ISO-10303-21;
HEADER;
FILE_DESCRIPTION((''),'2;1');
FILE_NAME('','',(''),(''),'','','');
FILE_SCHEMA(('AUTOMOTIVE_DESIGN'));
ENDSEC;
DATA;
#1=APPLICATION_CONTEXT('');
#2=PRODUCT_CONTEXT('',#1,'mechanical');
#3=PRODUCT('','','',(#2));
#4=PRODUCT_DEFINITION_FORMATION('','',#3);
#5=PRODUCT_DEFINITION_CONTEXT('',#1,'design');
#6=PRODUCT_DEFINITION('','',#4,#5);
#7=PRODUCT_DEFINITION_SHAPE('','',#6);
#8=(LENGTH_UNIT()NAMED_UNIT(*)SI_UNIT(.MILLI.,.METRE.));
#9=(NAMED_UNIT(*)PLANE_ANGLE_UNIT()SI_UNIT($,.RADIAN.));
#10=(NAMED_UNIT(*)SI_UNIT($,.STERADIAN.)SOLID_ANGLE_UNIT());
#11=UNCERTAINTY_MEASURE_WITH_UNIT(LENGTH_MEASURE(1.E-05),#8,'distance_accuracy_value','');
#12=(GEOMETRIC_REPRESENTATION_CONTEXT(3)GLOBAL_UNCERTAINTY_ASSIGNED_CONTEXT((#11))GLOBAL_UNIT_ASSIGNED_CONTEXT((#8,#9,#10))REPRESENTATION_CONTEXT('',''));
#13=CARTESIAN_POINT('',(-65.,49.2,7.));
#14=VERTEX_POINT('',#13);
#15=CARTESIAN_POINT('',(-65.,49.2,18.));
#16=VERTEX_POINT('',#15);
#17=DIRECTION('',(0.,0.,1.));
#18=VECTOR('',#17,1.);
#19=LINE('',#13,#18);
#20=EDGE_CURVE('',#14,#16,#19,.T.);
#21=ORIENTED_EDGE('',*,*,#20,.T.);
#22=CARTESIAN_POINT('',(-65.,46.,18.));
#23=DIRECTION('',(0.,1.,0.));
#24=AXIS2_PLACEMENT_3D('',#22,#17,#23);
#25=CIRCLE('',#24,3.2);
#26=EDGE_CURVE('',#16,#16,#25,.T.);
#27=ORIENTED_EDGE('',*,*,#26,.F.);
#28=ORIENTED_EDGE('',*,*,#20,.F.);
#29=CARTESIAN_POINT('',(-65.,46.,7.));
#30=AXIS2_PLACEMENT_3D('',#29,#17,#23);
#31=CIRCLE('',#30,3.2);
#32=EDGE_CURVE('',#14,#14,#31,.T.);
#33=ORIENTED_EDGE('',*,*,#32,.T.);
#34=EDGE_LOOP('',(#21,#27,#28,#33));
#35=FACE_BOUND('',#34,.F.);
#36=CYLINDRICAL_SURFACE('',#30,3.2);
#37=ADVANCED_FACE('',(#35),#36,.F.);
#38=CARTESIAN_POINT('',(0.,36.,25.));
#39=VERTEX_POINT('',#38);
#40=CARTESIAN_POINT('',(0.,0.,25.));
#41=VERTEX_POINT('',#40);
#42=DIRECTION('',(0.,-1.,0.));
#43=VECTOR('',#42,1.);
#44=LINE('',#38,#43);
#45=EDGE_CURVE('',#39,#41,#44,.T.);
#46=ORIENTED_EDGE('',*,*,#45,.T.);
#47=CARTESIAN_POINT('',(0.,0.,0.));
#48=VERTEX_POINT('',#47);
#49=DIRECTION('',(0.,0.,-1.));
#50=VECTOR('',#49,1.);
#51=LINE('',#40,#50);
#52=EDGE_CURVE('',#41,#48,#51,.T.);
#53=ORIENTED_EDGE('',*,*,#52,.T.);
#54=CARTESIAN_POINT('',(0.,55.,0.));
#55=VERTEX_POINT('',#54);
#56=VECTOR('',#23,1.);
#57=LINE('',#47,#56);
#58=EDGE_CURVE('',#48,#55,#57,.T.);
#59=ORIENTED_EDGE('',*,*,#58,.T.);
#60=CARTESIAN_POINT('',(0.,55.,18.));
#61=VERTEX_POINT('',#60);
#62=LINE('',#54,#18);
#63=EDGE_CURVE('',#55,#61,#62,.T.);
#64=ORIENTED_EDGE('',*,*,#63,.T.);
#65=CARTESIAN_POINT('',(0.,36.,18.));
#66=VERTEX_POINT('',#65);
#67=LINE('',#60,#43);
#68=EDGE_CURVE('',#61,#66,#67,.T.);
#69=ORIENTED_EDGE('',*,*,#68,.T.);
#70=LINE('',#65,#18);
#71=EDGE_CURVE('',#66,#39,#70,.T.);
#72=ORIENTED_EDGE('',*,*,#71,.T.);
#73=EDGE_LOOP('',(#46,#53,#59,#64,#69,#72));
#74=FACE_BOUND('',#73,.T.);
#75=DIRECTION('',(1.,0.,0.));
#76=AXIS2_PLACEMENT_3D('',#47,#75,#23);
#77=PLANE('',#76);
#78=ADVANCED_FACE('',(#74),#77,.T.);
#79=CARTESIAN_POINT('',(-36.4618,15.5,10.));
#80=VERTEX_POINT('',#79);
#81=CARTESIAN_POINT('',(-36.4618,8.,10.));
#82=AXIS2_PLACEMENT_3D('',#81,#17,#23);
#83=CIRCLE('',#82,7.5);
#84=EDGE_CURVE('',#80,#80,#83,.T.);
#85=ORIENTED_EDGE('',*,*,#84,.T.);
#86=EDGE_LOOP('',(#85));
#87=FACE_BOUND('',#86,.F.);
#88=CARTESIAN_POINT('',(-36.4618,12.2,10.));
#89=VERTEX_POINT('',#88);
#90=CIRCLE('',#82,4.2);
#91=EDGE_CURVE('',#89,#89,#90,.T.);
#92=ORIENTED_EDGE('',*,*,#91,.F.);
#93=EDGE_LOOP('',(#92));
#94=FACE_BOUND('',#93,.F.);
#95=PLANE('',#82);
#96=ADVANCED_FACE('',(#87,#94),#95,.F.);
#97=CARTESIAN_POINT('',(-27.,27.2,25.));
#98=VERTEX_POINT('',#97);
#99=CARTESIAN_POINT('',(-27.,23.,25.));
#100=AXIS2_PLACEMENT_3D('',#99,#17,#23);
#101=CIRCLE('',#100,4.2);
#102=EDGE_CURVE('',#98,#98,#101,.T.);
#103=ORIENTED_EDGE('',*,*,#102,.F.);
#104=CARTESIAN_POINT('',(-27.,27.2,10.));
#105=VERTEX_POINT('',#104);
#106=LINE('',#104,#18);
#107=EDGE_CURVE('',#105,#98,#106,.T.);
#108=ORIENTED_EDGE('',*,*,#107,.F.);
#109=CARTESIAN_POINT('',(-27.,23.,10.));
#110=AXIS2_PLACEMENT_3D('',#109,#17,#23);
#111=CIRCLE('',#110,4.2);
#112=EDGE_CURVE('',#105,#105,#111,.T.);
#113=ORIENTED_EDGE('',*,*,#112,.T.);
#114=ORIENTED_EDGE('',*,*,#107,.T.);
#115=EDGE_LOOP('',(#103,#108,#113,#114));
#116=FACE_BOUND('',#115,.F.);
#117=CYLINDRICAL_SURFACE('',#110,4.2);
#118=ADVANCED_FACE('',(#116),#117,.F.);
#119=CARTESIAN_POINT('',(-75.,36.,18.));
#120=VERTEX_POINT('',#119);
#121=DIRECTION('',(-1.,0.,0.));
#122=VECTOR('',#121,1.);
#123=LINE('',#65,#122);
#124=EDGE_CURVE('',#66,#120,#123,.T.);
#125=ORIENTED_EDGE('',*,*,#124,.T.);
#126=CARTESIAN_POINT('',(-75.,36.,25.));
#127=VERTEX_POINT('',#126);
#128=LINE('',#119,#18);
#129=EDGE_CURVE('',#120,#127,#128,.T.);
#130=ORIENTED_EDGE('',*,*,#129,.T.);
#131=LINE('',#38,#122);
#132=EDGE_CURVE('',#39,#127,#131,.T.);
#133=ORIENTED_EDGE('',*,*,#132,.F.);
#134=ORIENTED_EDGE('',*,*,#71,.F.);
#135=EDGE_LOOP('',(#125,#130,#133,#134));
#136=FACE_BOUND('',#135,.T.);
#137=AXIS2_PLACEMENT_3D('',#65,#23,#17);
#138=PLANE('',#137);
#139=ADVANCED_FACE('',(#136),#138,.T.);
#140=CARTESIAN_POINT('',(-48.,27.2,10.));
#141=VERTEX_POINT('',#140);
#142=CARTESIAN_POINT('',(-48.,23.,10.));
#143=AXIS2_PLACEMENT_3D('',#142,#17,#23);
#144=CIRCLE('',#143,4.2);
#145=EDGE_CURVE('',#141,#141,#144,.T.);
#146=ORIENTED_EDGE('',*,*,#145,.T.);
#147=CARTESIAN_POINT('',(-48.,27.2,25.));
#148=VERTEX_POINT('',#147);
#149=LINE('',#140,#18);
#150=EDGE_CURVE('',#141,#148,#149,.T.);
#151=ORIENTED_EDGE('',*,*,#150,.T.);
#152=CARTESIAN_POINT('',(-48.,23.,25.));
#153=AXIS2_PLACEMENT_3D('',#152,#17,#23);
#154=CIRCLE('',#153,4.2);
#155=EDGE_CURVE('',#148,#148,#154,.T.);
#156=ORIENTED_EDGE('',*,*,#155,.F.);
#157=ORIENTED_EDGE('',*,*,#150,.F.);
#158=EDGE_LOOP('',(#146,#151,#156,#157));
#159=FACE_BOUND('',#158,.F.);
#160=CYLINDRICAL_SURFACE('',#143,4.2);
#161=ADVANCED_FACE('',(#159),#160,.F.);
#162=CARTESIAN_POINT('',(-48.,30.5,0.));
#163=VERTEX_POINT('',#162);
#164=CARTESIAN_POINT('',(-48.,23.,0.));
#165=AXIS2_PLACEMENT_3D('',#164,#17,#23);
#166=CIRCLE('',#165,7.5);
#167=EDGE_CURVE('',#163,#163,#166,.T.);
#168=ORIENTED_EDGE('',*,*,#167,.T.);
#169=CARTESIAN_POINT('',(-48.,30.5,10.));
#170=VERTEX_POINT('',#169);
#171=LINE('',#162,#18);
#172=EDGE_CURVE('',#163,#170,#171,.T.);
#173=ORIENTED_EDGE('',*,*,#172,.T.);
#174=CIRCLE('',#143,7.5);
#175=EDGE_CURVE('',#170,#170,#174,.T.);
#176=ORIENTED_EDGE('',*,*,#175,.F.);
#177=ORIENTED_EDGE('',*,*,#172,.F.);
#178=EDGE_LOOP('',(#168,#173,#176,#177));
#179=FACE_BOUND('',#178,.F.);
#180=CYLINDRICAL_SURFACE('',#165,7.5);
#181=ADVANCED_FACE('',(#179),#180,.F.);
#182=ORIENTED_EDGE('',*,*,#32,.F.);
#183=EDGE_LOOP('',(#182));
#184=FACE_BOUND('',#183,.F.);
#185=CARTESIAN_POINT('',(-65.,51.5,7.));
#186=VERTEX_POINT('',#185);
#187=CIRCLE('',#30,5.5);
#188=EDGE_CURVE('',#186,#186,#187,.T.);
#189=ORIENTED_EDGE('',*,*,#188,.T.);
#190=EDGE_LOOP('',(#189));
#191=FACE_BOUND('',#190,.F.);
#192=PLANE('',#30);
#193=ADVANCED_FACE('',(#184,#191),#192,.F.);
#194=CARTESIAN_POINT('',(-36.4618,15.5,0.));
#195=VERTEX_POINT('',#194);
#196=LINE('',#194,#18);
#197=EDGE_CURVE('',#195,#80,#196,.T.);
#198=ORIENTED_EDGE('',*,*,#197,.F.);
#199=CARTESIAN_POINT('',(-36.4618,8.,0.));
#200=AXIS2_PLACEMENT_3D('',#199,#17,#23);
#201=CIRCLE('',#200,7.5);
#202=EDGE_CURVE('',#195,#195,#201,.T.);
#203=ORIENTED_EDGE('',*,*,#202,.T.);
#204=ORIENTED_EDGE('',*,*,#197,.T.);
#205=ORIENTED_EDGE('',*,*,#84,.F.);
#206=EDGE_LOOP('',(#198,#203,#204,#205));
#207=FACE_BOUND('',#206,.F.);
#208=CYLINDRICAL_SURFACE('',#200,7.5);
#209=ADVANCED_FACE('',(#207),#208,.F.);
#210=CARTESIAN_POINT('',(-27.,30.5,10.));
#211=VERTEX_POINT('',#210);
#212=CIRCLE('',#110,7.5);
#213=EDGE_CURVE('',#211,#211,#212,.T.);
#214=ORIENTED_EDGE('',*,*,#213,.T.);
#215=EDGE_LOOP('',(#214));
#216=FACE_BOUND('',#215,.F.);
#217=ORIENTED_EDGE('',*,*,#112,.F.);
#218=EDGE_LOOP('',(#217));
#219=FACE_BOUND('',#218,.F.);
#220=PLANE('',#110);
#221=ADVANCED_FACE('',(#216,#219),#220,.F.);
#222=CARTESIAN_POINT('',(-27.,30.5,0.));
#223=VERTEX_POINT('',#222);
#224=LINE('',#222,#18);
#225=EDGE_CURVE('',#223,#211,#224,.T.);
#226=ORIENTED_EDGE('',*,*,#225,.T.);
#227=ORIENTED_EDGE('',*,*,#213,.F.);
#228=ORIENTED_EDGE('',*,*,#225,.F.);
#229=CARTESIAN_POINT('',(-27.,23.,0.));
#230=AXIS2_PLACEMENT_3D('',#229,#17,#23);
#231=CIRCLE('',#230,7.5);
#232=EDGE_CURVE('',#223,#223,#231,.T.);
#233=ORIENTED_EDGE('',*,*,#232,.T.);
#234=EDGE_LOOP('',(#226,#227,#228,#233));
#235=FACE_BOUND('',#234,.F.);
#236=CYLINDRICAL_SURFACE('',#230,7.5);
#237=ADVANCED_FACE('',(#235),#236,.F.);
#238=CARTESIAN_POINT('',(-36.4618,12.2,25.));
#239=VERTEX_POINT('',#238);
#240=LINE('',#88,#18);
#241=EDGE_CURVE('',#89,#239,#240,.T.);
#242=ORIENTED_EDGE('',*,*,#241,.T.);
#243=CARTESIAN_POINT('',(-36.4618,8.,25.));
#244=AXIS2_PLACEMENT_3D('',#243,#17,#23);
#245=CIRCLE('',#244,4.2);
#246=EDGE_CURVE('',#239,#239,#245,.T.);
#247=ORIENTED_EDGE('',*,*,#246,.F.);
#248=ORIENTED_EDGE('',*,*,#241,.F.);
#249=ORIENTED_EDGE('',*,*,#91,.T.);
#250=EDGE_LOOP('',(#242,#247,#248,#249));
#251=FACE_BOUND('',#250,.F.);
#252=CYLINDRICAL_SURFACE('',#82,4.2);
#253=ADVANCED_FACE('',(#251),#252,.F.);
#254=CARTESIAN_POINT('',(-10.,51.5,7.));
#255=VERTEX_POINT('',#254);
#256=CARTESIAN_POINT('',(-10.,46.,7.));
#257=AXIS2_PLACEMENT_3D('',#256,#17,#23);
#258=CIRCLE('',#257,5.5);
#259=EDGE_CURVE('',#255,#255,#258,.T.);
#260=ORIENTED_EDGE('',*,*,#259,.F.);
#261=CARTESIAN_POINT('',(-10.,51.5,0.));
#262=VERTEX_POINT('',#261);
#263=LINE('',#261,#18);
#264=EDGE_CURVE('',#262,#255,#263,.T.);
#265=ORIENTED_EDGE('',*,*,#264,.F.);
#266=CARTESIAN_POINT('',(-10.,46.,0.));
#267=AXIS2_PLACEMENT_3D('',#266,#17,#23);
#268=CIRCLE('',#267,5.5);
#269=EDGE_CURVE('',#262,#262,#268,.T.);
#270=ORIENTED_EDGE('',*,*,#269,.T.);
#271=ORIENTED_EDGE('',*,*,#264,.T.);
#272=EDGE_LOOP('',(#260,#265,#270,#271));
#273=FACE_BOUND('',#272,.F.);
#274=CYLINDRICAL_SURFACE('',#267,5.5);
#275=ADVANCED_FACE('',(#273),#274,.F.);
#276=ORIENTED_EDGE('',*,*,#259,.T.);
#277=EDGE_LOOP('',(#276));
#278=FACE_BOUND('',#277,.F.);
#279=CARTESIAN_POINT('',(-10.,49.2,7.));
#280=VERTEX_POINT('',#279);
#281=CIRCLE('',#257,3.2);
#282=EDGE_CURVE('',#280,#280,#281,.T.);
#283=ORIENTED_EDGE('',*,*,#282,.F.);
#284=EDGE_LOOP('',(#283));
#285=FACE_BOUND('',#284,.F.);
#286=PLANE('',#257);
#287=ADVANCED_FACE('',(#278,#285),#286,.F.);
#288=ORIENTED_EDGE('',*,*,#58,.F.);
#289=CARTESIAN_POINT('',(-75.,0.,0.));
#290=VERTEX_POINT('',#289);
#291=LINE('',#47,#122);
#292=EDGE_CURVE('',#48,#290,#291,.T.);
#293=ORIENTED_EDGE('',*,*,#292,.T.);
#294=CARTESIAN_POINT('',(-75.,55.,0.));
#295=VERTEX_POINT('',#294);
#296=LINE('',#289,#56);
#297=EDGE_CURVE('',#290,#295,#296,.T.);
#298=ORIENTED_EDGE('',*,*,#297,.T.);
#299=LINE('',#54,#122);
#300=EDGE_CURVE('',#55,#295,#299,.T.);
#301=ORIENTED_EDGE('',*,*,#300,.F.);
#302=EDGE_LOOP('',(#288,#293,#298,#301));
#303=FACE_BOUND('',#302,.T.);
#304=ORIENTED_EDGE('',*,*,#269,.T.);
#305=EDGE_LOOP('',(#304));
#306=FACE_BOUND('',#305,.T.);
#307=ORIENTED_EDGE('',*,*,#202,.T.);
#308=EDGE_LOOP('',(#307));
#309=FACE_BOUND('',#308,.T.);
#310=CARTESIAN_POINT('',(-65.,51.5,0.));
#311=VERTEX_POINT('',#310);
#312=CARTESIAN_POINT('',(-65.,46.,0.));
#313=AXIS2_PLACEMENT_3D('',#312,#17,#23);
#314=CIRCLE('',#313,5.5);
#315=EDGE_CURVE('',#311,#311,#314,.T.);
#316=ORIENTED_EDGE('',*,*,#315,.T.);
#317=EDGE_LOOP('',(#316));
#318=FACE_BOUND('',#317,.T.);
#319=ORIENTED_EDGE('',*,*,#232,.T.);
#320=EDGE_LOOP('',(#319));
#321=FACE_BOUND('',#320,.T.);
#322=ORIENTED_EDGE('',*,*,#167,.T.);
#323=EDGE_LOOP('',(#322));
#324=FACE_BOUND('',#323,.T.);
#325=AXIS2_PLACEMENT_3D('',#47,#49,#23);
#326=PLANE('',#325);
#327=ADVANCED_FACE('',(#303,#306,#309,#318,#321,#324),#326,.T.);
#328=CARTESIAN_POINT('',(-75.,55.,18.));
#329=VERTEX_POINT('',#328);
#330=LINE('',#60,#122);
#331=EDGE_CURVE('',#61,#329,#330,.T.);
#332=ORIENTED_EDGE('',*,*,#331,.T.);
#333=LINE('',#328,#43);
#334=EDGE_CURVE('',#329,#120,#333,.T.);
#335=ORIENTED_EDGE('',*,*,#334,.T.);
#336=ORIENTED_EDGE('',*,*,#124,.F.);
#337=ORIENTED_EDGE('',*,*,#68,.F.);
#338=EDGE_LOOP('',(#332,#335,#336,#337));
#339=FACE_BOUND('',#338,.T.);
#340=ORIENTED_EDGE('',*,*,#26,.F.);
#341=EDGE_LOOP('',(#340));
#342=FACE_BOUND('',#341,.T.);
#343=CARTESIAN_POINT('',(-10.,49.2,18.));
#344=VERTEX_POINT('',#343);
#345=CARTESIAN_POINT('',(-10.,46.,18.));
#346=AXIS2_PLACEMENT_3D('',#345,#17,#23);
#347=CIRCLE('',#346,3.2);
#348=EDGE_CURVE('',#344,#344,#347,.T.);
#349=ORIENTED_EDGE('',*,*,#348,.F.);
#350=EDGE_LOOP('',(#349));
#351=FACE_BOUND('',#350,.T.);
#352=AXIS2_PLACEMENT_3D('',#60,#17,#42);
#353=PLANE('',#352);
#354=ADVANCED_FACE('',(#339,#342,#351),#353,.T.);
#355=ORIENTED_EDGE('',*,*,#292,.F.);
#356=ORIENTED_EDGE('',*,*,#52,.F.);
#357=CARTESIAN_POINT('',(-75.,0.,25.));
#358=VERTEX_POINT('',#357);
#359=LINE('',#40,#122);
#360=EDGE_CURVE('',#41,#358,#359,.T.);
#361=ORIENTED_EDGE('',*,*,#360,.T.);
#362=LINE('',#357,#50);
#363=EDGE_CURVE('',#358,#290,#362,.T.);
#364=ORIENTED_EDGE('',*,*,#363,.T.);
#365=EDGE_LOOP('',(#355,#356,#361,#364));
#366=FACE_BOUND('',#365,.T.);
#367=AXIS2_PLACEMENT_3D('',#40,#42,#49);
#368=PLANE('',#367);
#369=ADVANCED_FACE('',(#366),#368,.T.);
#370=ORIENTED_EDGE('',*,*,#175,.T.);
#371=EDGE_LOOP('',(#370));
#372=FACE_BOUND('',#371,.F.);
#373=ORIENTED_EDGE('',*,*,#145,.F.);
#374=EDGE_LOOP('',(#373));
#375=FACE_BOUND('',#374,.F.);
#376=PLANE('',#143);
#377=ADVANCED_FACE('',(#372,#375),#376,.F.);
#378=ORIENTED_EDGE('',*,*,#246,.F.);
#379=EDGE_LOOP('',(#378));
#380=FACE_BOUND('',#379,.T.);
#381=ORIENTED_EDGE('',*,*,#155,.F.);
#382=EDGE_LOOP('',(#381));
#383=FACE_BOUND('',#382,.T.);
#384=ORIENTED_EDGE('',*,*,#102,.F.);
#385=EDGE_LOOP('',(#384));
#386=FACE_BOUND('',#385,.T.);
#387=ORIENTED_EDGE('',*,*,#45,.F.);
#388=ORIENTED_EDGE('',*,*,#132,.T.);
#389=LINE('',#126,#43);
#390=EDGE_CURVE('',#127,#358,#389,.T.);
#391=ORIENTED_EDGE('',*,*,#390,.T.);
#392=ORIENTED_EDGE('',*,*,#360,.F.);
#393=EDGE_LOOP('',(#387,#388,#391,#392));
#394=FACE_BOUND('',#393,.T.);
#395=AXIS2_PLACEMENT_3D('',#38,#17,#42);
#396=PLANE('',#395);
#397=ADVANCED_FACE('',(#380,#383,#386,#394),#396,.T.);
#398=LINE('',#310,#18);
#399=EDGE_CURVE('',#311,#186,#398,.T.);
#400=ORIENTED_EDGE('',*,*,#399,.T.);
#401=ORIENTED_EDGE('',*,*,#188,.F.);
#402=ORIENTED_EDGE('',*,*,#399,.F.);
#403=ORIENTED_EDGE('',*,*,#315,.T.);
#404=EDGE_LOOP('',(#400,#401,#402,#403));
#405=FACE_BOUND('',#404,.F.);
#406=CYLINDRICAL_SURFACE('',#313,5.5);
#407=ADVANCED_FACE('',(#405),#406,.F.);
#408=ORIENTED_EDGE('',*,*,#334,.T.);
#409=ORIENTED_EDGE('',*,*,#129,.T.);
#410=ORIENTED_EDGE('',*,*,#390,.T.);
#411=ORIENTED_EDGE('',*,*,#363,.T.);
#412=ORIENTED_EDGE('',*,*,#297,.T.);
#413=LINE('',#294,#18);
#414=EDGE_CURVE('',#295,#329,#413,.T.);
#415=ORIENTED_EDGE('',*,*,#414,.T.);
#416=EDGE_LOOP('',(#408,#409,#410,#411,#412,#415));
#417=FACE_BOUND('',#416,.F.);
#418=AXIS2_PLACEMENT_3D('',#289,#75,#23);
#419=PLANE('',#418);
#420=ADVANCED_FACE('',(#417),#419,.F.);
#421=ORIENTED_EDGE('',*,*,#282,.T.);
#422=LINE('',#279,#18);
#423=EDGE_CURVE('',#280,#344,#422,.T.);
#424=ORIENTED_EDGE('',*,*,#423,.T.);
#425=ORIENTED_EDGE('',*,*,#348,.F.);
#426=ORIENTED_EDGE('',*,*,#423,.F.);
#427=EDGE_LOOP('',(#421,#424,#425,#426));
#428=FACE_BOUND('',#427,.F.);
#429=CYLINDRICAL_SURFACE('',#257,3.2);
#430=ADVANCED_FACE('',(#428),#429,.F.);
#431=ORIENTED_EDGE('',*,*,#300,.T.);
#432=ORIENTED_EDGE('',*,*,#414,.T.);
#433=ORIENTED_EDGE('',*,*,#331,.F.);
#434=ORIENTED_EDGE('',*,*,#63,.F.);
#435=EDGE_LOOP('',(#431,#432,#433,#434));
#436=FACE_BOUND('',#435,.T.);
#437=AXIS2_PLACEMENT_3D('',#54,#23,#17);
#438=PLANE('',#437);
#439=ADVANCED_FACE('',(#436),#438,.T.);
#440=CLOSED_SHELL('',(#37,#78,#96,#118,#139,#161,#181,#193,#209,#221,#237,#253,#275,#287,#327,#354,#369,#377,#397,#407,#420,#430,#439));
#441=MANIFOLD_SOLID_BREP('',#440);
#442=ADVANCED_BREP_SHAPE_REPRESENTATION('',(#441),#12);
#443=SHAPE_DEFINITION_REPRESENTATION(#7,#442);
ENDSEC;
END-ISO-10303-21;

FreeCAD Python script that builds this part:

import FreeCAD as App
import Part
import Sketcher
from FreeCAD import Vector
Q = App.Units.Quantity


def add_polygon(sketch, points):
    """Adds a closed chain of lines whose ends are joined by coincident constraints."""
    first, n = sketch.GeometryCount, len(points)
    for a, b in zip(points, points[1:] + points[:1]):
        sketch.addGeometry(Part.LineSegment(App.Vector(*a, 0), App.Vector(*b, 0)), False)
    for i in range(n):
        sketch.addConstraint(Sketcher.Constraint("Coincident", first + i, 2, first + (i + 1) % n, 1))

doc = App.newDocument("Part")
body = doc.addObject("PartDesign::Body", "Body")

# Sketch on YZ plane
sketch1 = body.newObject("Sketcher::SketchObject", "Sketch")
sketch1.AttachmentSupport = (doc.getObject("YZ_Plane"), [""])
sketch1.MapMode = "FlatFace"
add_polygon(sketch1, [(0, 25), (0, 0), (55, 0), (55, 18), (36, 18), (36, 25)])  # lines 0-5
sketch1.addConstraint([
    Sketcher.Constraint("Vertical", 0),
    Sketcher.Constraint("Horizontal", 1),
    Sketcher.Constraint("Vertical", 2),
    Sketcher.Constraint("Horizontal", 3),
    Sketcher.Constraint("Vertical", 4),
    Sketcher.Constraint("Horizontal", 5),
    Sketcher.Constraint("Coincident", 0, 2, -1, 1),
    Sketcher.Constraint("DistanceX", 1, 1, 1, 2, Q("55 mm")),
    Sketcher.Constraint("DistanceX", 3, 2, 3, 1, Q("19 mm")),
    Sketcher.Constraint("DistanceY", 2, 1, 2, 2, Q("18 mm")),
    Sketcher.Constraint("DistanceY", 4, 1, 4, 2, Q("7 mm")),
])
pad1 = body.newObject("PartDesign::Pad", "Pad")
pad1.Profile = sketch1
pad1.Length = 75
pad1.Reversed = True

# Sketch on XY plane
sketch2 = body.newObject("Sketcher::SketchObject", "Sketch001")
sketch2.AttachmentSupport = (doc.getObject("XY_Plane"), [""])
sketch2.MapMode = "FlatFace"
sketch2.addGeometry([
    Part.Circle(Vector(-36.5, 8, 0), Vector(0, 0, 1), 4.2),
    Part.Circle(Vector(-27, 23, 0), Vector(0, 0, 1), 4.2),
    Part.Circle(Vector(-48, 23, 0), Vector(0, 0, 1), 4.2),
], False)
sketch2.addConstraint([
    Sketcher.Constraint("Equal", 0, 1),
    Sketcher.Constraint("Equal", 1, 2),
    Sketcher.Constraint("Horizontal", 1, 3, 2, 3),
    Sketcher.Constraint("Diameter", 0, Q("8.4 mm")),
    Sketcher.Constraint("DistanceY", -1, 1, 0, 3, Q("8 mm")),
    Sketcher.Constraint("DistanceX", 1, 3, -1, 1, Q("27 mm")),
    Sketcher.Constraint("DistanceY", -1, 1, 1, 3, Q("23 mm")),
    Sketcher.Constraint("DistanceX", 2, 3, -1, 1, Q("48 mm")),
    Sketcher.Constraint("DistanceX", 0, 3, -1, 1, Q("36.4618 mm")),
])
doc.recompute()
hole = body.newObject("PartDesign::Hole", "Hole")
hole.Profile = sketch2
hole.ThreadType = "None"
hole.Diameter = 8.4
hole.DepthType = "ThroughAll"
hole.HoleCutType = "Counterbore"
hole.HoleCutDiameter = 15
hole.HoleCutDepth = 10
hole.Reversed = True

# Sketch on XY plane
sketch3 = body.newObject("Sketcher::SketchObject", "Sketch002")
sketch3.AttachmentSupport = (doc.getObject("XY_Plane"), [""])
sketch3.MapMode = "FlatFace"
sketch3.addGeometry([
    Part.Circle(Vector(-10, 46, 0), Vector(0, 0, 1), 3.2),
    Part.Circle(Vector(-65, 46, 0), Vector(0, 0, 1), 3.2),
], False)
sketch3.addConstraint([
    Sketcher.Constraint("Equal", 0, 1),
    Sketcher.Constraint("Horizontal", 0, 3, 1, 3),
    Sketcher.Constraint("Diameter", 0, Q("6.4 mm")),
    Sketcher.Constraint("DistanceX", 0, 3, -1, 1, Q("10 mm")),
    Sketcher.Constraint("DistanceY", -1, 1, 0, 3, Q("46 mm")),
    Sketcher.Constraint("DistanceX", 1, 3, -1, 1, Q("65 mm")),
])
doc.recompute()
hole2 = body.newObject("PartDesign::Hole", "Hole001")
hole2.Profile = sketch3
hole2.ThreadType = "None"
hole2.Diameter = 6.4
hole2.DepthType = "ThroughAll"
hole2.HoleCutType = "Counterbore"
hole2.HoleCutDiameter = 11
hole2.HoleCutDepth = 7
hole2.Reversed = True

doc.recompute()
